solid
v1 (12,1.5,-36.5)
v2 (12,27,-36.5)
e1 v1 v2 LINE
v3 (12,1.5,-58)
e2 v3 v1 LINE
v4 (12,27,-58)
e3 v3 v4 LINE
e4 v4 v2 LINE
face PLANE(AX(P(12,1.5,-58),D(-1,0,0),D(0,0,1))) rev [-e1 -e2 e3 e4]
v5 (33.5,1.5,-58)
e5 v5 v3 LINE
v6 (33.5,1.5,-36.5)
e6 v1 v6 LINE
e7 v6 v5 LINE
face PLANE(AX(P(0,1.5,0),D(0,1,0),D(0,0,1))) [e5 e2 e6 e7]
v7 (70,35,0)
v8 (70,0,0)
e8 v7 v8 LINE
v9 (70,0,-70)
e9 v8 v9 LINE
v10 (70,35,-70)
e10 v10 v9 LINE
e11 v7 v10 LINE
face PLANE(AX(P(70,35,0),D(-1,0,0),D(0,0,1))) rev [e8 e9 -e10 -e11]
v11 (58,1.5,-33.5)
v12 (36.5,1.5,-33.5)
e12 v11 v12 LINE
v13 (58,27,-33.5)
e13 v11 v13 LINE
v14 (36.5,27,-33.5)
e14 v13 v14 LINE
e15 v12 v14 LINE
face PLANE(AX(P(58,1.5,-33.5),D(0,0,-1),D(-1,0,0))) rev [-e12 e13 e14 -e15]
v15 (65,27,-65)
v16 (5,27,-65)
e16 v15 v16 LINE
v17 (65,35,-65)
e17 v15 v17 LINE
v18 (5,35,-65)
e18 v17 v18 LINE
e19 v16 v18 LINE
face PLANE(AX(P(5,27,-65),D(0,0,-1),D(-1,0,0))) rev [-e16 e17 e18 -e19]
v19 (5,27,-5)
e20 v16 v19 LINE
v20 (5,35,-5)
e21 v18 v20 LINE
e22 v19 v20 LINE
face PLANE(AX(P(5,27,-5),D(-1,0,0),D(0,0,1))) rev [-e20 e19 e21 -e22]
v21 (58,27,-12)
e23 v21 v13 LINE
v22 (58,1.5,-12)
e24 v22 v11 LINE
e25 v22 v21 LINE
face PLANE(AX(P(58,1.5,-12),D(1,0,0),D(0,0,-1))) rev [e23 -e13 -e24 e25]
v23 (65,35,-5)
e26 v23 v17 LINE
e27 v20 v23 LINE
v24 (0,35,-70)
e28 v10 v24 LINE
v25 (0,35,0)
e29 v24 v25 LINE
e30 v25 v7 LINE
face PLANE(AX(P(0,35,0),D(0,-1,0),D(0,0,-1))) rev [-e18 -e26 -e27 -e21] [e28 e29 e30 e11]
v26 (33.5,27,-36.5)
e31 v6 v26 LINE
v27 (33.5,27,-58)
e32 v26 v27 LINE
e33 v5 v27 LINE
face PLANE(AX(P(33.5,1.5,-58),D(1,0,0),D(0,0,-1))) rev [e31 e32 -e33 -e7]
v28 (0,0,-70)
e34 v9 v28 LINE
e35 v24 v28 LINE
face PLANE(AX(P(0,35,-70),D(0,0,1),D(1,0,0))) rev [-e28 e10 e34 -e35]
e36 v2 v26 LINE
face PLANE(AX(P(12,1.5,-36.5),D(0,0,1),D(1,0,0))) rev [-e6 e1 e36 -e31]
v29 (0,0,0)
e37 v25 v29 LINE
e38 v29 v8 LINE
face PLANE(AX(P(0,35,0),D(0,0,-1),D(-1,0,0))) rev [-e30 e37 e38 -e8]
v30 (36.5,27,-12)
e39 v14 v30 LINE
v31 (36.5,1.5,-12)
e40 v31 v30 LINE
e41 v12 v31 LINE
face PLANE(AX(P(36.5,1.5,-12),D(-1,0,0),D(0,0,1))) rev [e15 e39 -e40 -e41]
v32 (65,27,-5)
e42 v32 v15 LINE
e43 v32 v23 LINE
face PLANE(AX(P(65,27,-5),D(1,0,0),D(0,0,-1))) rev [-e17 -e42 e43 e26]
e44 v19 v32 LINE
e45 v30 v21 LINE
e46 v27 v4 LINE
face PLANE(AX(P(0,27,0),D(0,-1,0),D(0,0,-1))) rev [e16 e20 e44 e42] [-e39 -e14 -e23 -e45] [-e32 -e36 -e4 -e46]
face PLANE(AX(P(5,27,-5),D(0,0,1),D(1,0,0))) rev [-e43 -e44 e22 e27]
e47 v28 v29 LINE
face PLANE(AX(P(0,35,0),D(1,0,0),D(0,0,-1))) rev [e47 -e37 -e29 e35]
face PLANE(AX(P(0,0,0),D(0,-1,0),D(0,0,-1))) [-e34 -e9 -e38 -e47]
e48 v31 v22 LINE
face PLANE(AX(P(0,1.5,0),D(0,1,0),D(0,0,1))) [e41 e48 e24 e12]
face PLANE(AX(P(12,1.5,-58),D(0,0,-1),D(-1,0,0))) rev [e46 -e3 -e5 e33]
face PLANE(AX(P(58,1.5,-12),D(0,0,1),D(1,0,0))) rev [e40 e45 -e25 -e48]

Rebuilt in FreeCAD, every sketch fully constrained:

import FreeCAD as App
import Part
import Sketcher

doc = App.newDocument("Part")
body = doc.addObject("PartDesign::Body", "Body")

# Sketch on XZ plane
sketch1 = doc.addObject("Sketcher::SketchObject", "Sketch")
body.addObject(sketch1)
sketch1.AttachmentSupport = (doc.XZ_Plane, [""])
sketch1.MapMode = "FlatFace"
sketch1.addGeometry(Part.LineSegment(App.Vector(0, -70, 0), App.Vector(0, 0, 0)), False)
sketch1.addGeometry(Part.LineSegment(App.Vector(0, 0, 0), App.Vector(70, 0, 0)), False)
sketch1.addGeometry(Part.LineSegment(App.Vector(70, 0, 0), App.Vector(70, -70, 0)), False)
sketch1.addGeometry(Part.LineSegment(App.Vector(70, -70, 0), App.Vector(0, -70, 0)), False)
sketch1.addConstraint(Sketcher.Constraint("Coincident", 0, 2, 1, 1))
sketch1.addConstraint(Sketcher.Constraint("Coincident", 1, 2, 2, 1))
sketch1.addConstraint(Sketcher.Constraint("Coincident", 2, 2, 3, 1))
sketch1.addConstraint(Sketcher.Constraint("Coincident", 3, 2, 0, 1))
sketch1.addConstraint(Sketcher.Constraint("Vertical", 0))
sketch1.addConstraint(Sketcher.Constraint("Horizontal", 1))
sketch1.addConstraint(Sketcher.Constraint("Vertical", 2))
sketch1.addConstraint(Sketcher.Constraint("Horizontal", 3))
sketch1.addConstraint(Sketcher.Constraint("Coincident", 0, 2, -1, 1))
sketch1.addConstraint(Sketcher.Constraint("Equal", 3, 0))
sketch1.addConstraint(Sketcher.Constraint("DistanceX", 1, 1, 1, 2, 70.0))
pad1 = doc.addObject("PartDesign::Pad", "Pad")
body.addObject(pad1)
pad1.Profile = sketch1
pad1.Length = 35
pad1.Reversed = True

# Sketch on XZ plane
sketch2 = doc.addObject("Sketcher::SketchObject", "Sketch001")
body.addObject(sketch2)
sketch2.AttachmentSupport = (doc.XZ_Plane, [""])
sketch2.MapMode = "FlatFace"
sketch2.AttachmentOffset = App.Placement(App.Vector(0, 0, -35), App.Rotation())
sketch2.addGeometry(Part.LineSegment(App.Vector(5, -65, 0), App.Vector(5, -5, 0)), False)
sketch2.addGeometry(Part.LineSegment(App.Vector(5, -5, 0), App.Vector(65, -5, 0)), False)
sketch2.addGeometry(Part.LineSegment(App.Vector(65, -5, 0), App.Vector(65, -65, 0)), False)
sketch2.addGeometry(Part.LineSegment(App.Vector(65, -65, 0), App.Vector(5, -65, 0)), False)
sketch2.addConstraint(Sketcher.Constraint("Coincident", 0, 2, 1, 1))
sketch2.addConstraint(Sketcher.Constraint("Coincident", 1, 2, 2, 1))
sketch2.addConstraint(Sketcher.Constraint("Coincident", 2, 2, 3, 1))
sketch2.addConstraint(Sketcher.Constraint("Coincident", 3, 2, 0, 1))
sketch2.addConstraint(Sketcher.Constraint("Vertical", 0))
sketch2.addConstraint(Sketcher.Constraint("Horizontal", 1))
sketch2.addConstraint(Sketcher.Constraint("Vertical", 2))
sketch2.addConstraint(Sketcher.Constraint("Horizontal", 3))
sketch2.addConstraint(Sketcher.Constraint("Equal", 3, 0))
sketch2.addConstraint(Sketcher.Constraint("DistanceX", 1, 1, 1, 2, 60.0))
sketch2.addConstraint(Sketcher.Constraint("DistanceX", -1, 1, 0, 2, 5.0))
sketch2.addConstraint(Sketcher.Constraint("DistanceY", 0, 2, -1, 1, 5.0))
pocket1 = doc.addObject("PartDesign::Pocket", "Pocket")
body.addObject(pocket1)
pocket1.Profile = sketch2
pocket1.Length = 8
pocket1.Reversed = True

# Sketch on XZ plane
sketch3 = doc.addObject("Sketcher::SketchObject", "Sketch002")
body.addObject(sketch3)
sketch3.AttachmentSupport = (doc.XZ_Plane, [""])
sketch3.MapMode = "FlatFace"
sketch3.AttachmentOffset = App.Placement(App.Vector(0, 0, -27), App.Rotation())
sketch3.addGeometry(Part.LineSegment(App.Vector(12, -58, 0), App.Vector(12, -36.5, 0)), False)
sketch3.addGeometry(Part.LineSegment(App.Vector(12, -36.5, 0), App.Vector(33.5, -36.5, 0)), False)
sketch3.addGeometry(Part.LineSegment(App.Vector(33.5, -36.5, 0), App.Vector(33.5, -58, 0)), False)
sketch3.addGeometry(Part.LineSegment(App.Vector(33.5, -58, 0), App.Vector(12, -58, 0)), False)
sketch3.addGeometry(Part.LineSegment(App.Vector(36.5, -33.5, 0), App.Vector(36.5, -12, 0)), False)
sketch3.addGeometry(Part.LineSegment(App.Vector(36.5, -12, 0), App.Vector(58, -12, 0)), False)
sketch3.addGeometry(Part.LineSegment(App.Vector(58, -12, 0), App.Vector(58, -33.5, 0)), False)
sketch3.addGeometry(Part.LineSegment(App.Vector(58, -33.5, 0), App.Vector(36.5, -33.5, 0)), False)
sketch3.addConstraint(Sketcher.Constraint("Coincident", 0, 2, 1, 1))
sketch3.addConstraint(Sketcher.Constraint("Coincident", 1, 2, 2, 1))
sketch3.addConstraint(Sketcher.Constraint("Coincident", 2, 2, 3, 1))
sketch3.addConstraint(Sketcher.Constraint("Coincident", 3, 2, 0, 1))
sketch3.addConstraint(Sketcher.Constraint("Coincident", 4, 2, 5, 1))
sketch3.addConstraint(Sketcher.Constraint("Coincident", 5, 2, 6, 1))
sketch3.addConstraint(Sketcher.Constraint("Coincident", 6, 2, 7, 1))
sketch3.addConstraint(Sketcher.Constraint("Coincident", 7, 2, 4, 1))
sketch3.addConstraint(Sketcher.Constraint("Vertical", 0))
sketch3.addConstraint(Sketcher.Constraint("Horizontal", 1))
sketch3.addConstraint(Sketcher.Constraint("Vertical", 2))
sketch3.addConstraint(Sketcher.Constraint("Horizontal", 3))
sketch3.addConstraint(Sketcher.Constraint("Vertical", 4))
sketch3.addConstraint(Sketcher.Constraint("Horizontal", 5))
sketch3.addConstraint(Sketcher.Constraint("Vertical", 6))
sketch3.addConstraint(Sketcher.Constraint("Horizontal", 7))
sketch3.addConstraint(Sketcher.Constraint("Equal", 3, 5))
sketch3.addConstraint(Sketcher.Constraint("Equal", 7, 0))
sketch3.addConstraint(Sketcher.Constraint("Equal", 2, 4))
sketch3.addConstraint(Sketcher.Constraint("DistanceX", 1, 1, 1, 2, 21.5))
sketch3.addConstraint(Sketcher.Constraint("DistanceX", -1, 1, 0, 2, 12.0))
sketch3.addConstraint(Sketcher.Constraint("DistanceY", 2, 2, -1, 1, 58.0))
sketch3.addConstraint(Sketcher.Constraint("DistanceY", 4, 2, -1, 1, 12.0))
sketch3.addConstraint(Sketcher.Constraint("DistanceX", -1, 1, 5, 2, 58.0))
pocket2 = doc.addObject("PartDesign::Pocket", "Pocket001")
body.addObject(pocket2)
pocket2.Profile = sketch3
pocket2.Length = 25.5
pocket2.Reversed = True

doc.recompute()
